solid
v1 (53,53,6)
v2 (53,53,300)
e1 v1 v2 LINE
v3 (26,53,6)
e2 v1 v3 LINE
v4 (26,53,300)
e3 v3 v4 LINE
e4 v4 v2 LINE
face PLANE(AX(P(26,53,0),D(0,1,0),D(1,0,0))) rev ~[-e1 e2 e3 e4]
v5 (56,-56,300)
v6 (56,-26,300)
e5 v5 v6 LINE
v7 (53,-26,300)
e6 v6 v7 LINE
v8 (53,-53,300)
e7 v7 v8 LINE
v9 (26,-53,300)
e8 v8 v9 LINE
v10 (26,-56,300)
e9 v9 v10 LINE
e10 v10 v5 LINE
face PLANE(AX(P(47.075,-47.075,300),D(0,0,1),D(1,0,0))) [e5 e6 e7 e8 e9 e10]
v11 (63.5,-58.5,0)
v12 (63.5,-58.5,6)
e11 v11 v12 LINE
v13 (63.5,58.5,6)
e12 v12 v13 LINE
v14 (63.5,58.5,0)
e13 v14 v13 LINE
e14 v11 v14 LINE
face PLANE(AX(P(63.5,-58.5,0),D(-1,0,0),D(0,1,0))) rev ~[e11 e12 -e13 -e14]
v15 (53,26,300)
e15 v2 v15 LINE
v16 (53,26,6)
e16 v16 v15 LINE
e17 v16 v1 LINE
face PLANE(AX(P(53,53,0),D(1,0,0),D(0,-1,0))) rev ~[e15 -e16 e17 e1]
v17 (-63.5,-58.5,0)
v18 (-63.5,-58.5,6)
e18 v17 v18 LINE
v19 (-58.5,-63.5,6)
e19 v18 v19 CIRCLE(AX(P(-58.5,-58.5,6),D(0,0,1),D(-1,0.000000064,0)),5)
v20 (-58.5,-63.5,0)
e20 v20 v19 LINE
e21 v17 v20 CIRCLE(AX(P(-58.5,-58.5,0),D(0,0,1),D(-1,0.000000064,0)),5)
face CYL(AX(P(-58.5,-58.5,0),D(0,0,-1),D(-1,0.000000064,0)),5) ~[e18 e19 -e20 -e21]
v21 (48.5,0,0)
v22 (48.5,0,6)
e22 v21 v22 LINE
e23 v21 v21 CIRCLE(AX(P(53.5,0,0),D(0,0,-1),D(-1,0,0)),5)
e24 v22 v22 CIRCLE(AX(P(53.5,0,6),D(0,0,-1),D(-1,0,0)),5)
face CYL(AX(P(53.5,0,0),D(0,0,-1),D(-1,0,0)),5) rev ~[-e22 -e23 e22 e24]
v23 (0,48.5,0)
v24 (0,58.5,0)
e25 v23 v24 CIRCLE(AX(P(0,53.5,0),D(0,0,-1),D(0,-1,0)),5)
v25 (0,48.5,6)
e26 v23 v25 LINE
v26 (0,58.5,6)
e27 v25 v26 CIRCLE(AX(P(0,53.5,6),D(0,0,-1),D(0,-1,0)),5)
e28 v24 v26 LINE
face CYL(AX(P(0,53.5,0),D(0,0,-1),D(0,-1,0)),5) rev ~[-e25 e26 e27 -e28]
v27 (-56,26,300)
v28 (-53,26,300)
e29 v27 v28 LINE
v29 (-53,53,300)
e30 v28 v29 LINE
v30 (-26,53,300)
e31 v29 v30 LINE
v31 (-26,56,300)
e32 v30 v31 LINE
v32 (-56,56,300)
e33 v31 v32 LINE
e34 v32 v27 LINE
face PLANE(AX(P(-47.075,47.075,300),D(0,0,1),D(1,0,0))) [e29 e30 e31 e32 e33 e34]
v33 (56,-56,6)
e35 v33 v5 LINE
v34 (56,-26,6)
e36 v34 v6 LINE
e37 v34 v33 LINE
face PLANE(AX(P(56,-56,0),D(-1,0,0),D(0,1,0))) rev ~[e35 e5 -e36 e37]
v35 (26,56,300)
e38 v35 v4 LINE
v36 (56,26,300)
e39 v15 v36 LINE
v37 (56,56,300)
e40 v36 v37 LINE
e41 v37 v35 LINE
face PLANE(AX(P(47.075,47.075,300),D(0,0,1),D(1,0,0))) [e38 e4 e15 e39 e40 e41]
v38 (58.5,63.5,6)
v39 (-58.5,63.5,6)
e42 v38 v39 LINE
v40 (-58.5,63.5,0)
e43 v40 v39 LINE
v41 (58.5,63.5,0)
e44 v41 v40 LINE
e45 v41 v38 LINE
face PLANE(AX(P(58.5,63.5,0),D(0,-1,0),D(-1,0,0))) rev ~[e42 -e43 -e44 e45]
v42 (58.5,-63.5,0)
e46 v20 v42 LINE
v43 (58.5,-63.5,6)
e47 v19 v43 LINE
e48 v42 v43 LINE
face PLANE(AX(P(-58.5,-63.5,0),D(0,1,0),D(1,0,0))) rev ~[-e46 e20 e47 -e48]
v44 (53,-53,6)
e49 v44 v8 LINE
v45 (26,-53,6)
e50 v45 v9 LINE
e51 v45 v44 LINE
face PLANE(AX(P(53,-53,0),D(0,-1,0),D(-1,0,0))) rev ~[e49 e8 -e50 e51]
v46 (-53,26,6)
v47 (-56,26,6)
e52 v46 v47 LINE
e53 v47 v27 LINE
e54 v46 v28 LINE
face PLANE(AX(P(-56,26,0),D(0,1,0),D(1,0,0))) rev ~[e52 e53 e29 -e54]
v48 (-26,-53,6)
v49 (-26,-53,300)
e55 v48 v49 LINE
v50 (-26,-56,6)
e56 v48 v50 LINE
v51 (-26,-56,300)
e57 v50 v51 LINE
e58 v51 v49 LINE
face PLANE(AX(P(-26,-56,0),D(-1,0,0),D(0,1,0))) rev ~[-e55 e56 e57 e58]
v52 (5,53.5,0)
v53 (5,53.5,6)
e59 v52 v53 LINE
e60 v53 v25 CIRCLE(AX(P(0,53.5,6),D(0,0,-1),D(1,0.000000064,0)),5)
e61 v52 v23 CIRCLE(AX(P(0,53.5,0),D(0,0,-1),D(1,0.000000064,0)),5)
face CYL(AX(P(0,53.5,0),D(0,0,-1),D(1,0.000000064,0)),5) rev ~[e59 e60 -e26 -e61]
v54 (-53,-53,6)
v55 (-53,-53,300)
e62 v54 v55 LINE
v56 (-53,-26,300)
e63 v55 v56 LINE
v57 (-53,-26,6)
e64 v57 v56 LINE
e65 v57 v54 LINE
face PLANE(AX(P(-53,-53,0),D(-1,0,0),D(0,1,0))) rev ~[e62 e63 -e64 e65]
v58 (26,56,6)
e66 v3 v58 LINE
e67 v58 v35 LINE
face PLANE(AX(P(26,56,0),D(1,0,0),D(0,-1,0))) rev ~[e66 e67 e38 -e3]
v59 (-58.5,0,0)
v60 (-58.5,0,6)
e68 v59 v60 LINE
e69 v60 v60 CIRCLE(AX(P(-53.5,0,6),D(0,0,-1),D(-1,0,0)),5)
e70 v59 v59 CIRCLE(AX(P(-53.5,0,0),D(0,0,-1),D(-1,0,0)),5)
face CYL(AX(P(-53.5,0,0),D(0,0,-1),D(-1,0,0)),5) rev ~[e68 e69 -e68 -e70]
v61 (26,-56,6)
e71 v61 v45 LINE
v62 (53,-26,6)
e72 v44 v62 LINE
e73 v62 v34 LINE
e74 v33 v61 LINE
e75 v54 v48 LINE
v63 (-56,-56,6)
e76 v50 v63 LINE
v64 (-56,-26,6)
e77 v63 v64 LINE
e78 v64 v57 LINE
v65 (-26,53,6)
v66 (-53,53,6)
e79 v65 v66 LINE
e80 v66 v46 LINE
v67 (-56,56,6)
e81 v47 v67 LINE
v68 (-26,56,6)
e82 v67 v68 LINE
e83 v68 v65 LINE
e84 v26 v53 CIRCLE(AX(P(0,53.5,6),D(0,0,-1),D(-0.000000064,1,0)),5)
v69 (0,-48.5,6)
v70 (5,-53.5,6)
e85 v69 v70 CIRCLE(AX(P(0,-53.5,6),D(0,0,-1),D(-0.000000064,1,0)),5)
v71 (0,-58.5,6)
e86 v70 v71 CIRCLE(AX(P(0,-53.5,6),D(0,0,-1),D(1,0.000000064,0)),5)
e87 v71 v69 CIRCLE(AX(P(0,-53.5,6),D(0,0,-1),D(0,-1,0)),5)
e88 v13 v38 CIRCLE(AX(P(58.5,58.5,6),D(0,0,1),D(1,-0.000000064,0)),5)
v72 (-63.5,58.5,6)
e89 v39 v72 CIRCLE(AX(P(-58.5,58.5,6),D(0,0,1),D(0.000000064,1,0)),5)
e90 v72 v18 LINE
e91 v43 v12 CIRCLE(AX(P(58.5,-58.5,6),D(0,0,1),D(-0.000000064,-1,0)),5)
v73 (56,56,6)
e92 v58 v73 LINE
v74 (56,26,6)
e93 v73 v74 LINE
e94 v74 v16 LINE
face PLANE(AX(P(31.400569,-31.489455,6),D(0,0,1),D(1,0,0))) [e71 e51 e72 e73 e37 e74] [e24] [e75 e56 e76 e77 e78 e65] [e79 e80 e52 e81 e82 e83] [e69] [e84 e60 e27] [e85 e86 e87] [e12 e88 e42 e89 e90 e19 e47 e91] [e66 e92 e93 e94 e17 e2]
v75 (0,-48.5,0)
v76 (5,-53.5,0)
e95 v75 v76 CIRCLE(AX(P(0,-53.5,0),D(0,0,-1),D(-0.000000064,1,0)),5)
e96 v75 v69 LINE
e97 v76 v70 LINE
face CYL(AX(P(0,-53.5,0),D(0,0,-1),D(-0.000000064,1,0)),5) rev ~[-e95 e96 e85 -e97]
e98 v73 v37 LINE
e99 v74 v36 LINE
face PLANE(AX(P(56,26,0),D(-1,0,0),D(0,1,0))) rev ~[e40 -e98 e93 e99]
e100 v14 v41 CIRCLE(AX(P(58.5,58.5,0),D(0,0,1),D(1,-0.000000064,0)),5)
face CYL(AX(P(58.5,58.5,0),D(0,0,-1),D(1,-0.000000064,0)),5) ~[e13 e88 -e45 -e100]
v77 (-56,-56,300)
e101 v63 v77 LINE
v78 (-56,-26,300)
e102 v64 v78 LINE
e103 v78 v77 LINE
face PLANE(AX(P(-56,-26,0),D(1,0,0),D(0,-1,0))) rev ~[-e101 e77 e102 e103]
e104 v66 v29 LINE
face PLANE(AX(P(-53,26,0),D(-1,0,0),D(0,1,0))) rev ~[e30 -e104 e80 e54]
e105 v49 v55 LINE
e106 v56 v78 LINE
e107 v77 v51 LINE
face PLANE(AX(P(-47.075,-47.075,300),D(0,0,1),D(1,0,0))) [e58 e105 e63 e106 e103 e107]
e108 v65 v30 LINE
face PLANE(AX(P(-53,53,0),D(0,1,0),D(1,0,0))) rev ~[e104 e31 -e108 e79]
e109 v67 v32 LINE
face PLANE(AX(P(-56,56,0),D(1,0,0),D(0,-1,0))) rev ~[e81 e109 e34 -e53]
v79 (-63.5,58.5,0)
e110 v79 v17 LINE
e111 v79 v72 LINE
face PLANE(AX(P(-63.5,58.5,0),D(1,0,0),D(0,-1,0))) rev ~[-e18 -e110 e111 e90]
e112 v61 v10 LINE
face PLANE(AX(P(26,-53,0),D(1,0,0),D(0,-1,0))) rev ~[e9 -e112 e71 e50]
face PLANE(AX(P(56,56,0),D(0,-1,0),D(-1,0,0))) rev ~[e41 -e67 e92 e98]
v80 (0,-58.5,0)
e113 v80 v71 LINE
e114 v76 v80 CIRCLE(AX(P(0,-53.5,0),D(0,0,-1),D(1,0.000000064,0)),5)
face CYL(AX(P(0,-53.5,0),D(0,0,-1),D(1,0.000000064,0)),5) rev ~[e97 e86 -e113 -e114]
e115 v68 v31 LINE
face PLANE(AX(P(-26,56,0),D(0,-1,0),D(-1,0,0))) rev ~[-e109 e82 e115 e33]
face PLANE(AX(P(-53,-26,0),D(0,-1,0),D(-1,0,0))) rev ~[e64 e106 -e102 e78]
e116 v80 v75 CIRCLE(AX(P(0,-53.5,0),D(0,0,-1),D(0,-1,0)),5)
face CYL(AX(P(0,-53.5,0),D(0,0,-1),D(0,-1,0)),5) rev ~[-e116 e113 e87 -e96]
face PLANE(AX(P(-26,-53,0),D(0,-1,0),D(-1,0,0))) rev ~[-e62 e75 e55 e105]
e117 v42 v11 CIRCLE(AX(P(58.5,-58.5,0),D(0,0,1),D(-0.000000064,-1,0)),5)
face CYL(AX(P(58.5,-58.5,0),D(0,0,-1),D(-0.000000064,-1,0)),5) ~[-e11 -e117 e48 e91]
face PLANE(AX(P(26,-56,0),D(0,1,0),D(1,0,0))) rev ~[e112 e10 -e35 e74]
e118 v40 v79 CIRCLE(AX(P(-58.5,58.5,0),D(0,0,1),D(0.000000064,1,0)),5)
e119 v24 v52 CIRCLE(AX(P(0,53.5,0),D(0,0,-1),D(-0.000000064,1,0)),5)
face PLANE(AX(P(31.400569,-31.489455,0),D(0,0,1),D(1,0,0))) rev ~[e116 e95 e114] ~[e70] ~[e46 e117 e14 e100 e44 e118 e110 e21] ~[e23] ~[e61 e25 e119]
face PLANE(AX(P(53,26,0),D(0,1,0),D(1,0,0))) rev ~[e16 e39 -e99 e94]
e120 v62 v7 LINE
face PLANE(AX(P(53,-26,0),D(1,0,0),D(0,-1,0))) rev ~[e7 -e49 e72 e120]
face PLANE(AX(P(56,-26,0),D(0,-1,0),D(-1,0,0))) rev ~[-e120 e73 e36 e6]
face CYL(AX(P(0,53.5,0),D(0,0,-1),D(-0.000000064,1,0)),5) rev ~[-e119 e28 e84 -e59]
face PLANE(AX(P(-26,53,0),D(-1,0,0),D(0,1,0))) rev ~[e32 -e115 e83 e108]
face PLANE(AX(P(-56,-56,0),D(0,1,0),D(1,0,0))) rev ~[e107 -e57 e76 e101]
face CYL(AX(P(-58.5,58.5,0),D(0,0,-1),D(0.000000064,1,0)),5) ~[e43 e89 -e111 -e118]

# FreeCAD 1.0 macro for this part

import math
import FreeCAD as App
import Part
import Sketcher

doc = App.newDocument("Part")
body = doc.addObject("PartDesign::Body", "Body")

sketch1 = body.newObject("Sketcher::SketchObject", "Sketch")
sketch1.AttachmentSupport = (doc.getObject("XY_Plane"), [""])
sketch1.MapMode = "FlatFace"
sketch1.addGeometry([
    Part.ArcOfCircle(Part.Circle(App.Vector(58.5, -58.5, 0), App.Vector(0, 0, 1), 5), math.radians(-90.000004), math.radians(0.000004)),
    Part.LineSegment(App.Vector(63.5, -58.5, 0), App.Vector(63.5, 58.5, 0)),
    Part.ArcOfCircle(Part.Circle(App.Vector(58.5, 58.5, 0), App.Vector(0, 0, 1), 5), math.radians(-0.000004), math.radians(90.000004)),
    Part.LineSegment(App.Vector(58.5, 63.5, 0), App.Vector(-58.5, 63.5, 0)),
    Part.ArcOfCircle(Part.Circle(App.Vector(-58.5, 58.5, 0), App.Vector(0, 0, 1), 5), math.radians(89.999996), math.radians(180.000004)),
    Part.LineSegment(App.Vector(-63.5, 58.5, 0), App.Vector(-63.5, -58.5, 0)),
    Part.ArcOfCircle(Part.Circle(App.Vector(-58.5, -58.5, 0), App.Vector(0, 0, 1), 5), math.radians(179.999996), math.radians(270.000004)),
    Part.LineSegment(App.Vector(-58.5, -63.5, 0), App.Vector(58.5, -63.5, 0)),
    Part.LineSegment(App.Vector(-26, -56, 0), App.Vector(-56, -56, 0)),
    Part.LineSegment(App.Vector(-56, -56, 0), App.Vector(-56, -26, 0)),
    Part.LineSegment(App.Vector(-56, -26, 0), App.Vector(-53, -26, 0)),
    Part.LineSegment(App.Vector(-53, -26, 0), App.Vector(-53, -53, 0)),
    Part.LineSegment(App.Vector(-53, -53, 0), App.Vector(-26, -53, 0)),
    Part.LineSegment(App.Vector(-26, -53, 0), App.Vector(-26, -56, 0)),
    Part.Circle(App.Vector(-53.5, 0, 0), App.Vector(0, 0, 1), 5),
    Part.ArcOfCircle(Part.Circle(App.Vector(0, -53.5, 0), App.Vector(0, 0, 1), 5), math.radians(-90.000004), math.radians(0.000004)),
    Part.ArcOfCircle(Part.Circle(App.Vector(0, -53.5, 0), App.Vector(0, 0, 1), 5), math.radians(90), math.radians(270)),
    Part.ArcOfCircle(Part.Circle(App.Vector(0, -53.5, 0), App.Vector(0, 0, 1), 5), math.radians(-0.000004), math.radians(90.000004)),
    Part.LineSegment(App.Vector(53, -53, 0), App.Vector(53, -26, 0)),
    Part.LineSegment(App.Vector(53, -26, 0), App.Vector(56, -26, 0)),
    Part.LineSegment(App.Vector(56, -26, 0), App.Vector(56, -56, 0)),
    Part.LineSegment(App.Vector(56, -56, 0), App.Vector(26, -56, 0)),
    Part.LineSegment(App.Vector(26, -56, 0), App.Vector(26, -53, 0)),
    Part.LineSegment(App.Vector(26, -53, 0), App.Vector(53, -53, 0)),
    Part.Circle(App.Vector(53.5, 0, 0), App.Vector(0, 0, 1), 5),
    Part.LineSegment(App.Vector(-53, 26, 0), App.Vector(-56, 26, 0)),
    Part.LineSegment(App.Vector(-56, 26, 0), App.Vector(-56, 56, 0)),
    Part.LineSegment(App.Vector(-56, 56, 0), App.Vector(-26, 56, 0)),
    Part.LineSegment(App.Vector(-26, 56, 0), App.Vector(-26, 53, 0)),
    Part.LineSegment(App.Vector(-26, 53, 0), App.Vector(-53, 53, 0)),
    Part.LineSegment(App.Vector(-53, 53, 0), App.Vector(-53, 26, 0)),
    Part.ArcOfCircle(Part.Circle(App.Vector(0, 53.5, 0), App.Vector(0, 0, 1), 5), math.radians(-0.000004), math.radians(90.000004)),
    Part.ArcOfCircle(Part.Circle(App.Vector(0, 53.5, 0), App.Vector(0, 0, 1), 5), math.radians(-90.000004), math.radians(0.000004)),
    Part.ArcOfCircle(Part.Circle(App.Vector(0, 53.5, 0), App.Vector(0, 0, 1), 5), math.radians(90), math.radians(270)),
    Part.LineSegment(App.Vector(53, 53, 0), App.Vector(26, 53, 0)),
    Part.LineSegment(App.Vector(26, 53, 0), App.Vector(26, 56, 0)),
    Part.LineSegment(App.Vector(26, 56, 0), App.Vector(56, 56, 0)),
    Part.LineSegment(App.Vector(56, 56, 0), App.Vector(56, 26, 0)),
    Part.LineSegment(App.Vector(56, 26, 0), App.Vector(53, 26, 0)),
    Part.LineSegment(App.Vector(53, 26, 0), App.Vector(53, 53, 0)),
], False)
sketch1.addConstraint([
    Sketcher.Constraint("Tangent", 0, 2, 1, 1),
    Sketcher.Constraint("Tangent", 1, 2, 2, 1),
    Sketcher.Constraint("Tangent", 2, 2, 3, 1),
    Sketcher.Constraint("Tangent", 3, 2, 4, 1),
    Sketcher.Constraint("Tangent", 4, 2, 5, 1),
    Sketcher.Constraint("Tangent", 5, 2, 6, 1),
    Sketcher.Constraint("Tangent", 6, 2, 7, 1),
    Sketcher.Constraint("Tangent", 7, 2, 0, 1),
    Sketcher.Constraint("Coincident", 8, 2, 9, 1),
    Sketcher.Constraint("Coincident", 9, 2, 10, 1),
    Sketcher.Constraint("Coincident", 10, 2, 11, 1),
    Sketcher.Constraint("Coincident", 11, 2, 12, 1),
    Sketcher.Constraint("Coincident", 12, 2, 13, 1),
    Sketcher.Constraint("Coincident", 13, 2, 8, 1),
    Sketcher.Constraint("Tangent", 15, 1, 16, 2),
    Sketcher.Constraint("Tangent", 16, 1, 17, 2),
    Sketcher.Constraint("Tangent", 17, 1, 15, 2),
    Sketcher.Constraint("Coincident", 18, 2, 19, 1),
    Sketcher.Constraint("Coincident", 19, 2, 20, 1),
    Sketcher.Constraint("Coincident", 20, 2, 21, 1),
    Sketcher.Constraint("Coincident", 21, 2, 22, 1),
    Sketcher.Constraint("Coincident", 22, 2, 23, 1),
    Sketcher.Constraint("Coincident", 23, 2, 18, 1),
    Sketcher.Constraint("Coincident", 25, 2, 26, 1),
    Sketcher.Constraint("Coincident", 26, 2, 27, 1),
    Sketcher.Constraint("Coincident", 27, 2, 28, 1),
    Sketcher.Constraint("Coincident", 28, 2, 29, 1),
    Sketcher.Constraint("Coincident", 29, 2, 30, 1),
    Sketcher.Constraint("Coincident", 30, 2, 25, 1),
    Sketcher.Constraint("Tangent", 31, 1, 32, 2),
    Sketcher.Constraint("Tangent", 32, 1, 33, 2),
    Sketcher.Constraint("Tangent", 33, 1, 31, 2),
    Sketcher.Constraint("Coincident", 34, 2, 35, 1),
    Sketcher.Constraint("Coincident", 35, 2, 36, 1),
    Sketcher.Constraint("Coincident", 36, 2, 37, 1),
    Sketcher.Constraint("Coincident", 37, 2, 38, 1),
    Sketcher.Constraint("Coincident", 38, 2, 39, 1),
    Sketcher.Constraint("Coincident", 39, 2, 34, 1),
    Sketcher.Constraint("Vertical", 1),
    Sketcher.Constraint("Horizontal", 3),
    Sketcher.Constraint("Vertical", 5),
    Sketcher.Constraint("Horizontal", 7),
    Sketcher.Constraint("Horizontal", 8),
    Sketcher.Constraint("Vertical", 9),
    Sketcher.Constraint("Horizontal", 10),
    Sketcher.Constraint("Vertical", 11),
    Sketcher.Constraint("Horizontal", 12),
    Sketcher.Constraint("Vertical", 13),
    Sketcher.Constraint("Vertical", 18),
    Sketcher.Constraint("Horizontal", 19),
    Sketcher.Constraint("Vertical", 20),
    Sketcher.Constraint("Horizontal", 21),
    Sketcher.Constraint("Vertical", 22),
    Sketcher.Constraint("Horizontal", 23),
    Sketcher.Constraint("Horizontal", 25),
    Sketcher.Constraint("Vertical", 26),
    Sketcher.Constraint("Horizontal", 27),
    Sketcher.Constraint("Vertical", 28),
    Sketcher.Constraint("Horizontal", 29),
    Sketcher.Constraint("Vertical", 30),
    Sketcher.Constraint("Horizontal", 34),
    Sketcher.Constraint("Vertical", 35),
    Sketcher.Constraint("Horizontal", 36),
    Sketcher.Constraint("Vertical", 37),
    Sketcher.Constraint("Horizontal", 38),
    Sketcher.Constraint("Vertical", 39),
    Sketcher.Constraint("Equal", 0, 2),
    Sketcher.Constraint("Equal", 2, 4),
    Sketcher.Constraint("Equal", 4, 6),
    Sketcher.Constraint("Equal", 6, 14),
    Sketcher.Constraint("Equal", 14, 15),
    Sketcher.Constraint("Equal", 17, 24),
    Sketcher.Constraint("Equal", 24, 31),
    Sketcher.Constraint("Symmetric", 0, 3, 4, 3, -1, 1),
    Sketcher.Constraint("Symmetric", 14, 3, 24, 3, -1, 1),
    Sketcher.Constraint("Symmetric", 15, 3, 31, 3, -1, 1),
    Sketcher.Constraint("Symmetric", 19, 2, 25, 2, -1, 1),
    Sketcher.Constraint("Symmetric", 21, 2, 27, 2, -1, 1),
    Sketcher.Constraint("Symmetric", 23, 2, 29, 2, -1, 1),
    Sketcher.Constraint("Symmetric", 12, 2, 34, 2, -1, 1),
    Sketcher.Constraint("Symmetric", 8, 2, 36, 2, -1, 1),
    Sketcher.Constraint("Symmetric", 10, 2, 38, 2, -1, 1),
    Sketcher.Constraint("Symmetric", 10, 2, 18, 2, -2),
    Sketcher.Constraint("Symmetric", 8, 2, 20, 2, -2),
    Sketcher.Constraint("Symmetric", 12, 2, 22, 2, -2),
    Sketcher.Constraint("Symmetric", 17, 1, 31, 1, -1),
    Sketcher.Constraint("PointOnObject", 14, 3, -1),
    Sketcher.Constraint("PointOnObject", 15, 1, -2),
    Sketcher.Constraint("PointOnObject", 16, 1, -2),
    Sketcher.Constraint("PointOnObject", 32, 1, -2),
    Sketcher.Constraint("PointOnObject", 33, 1, -2),
    Sketcher.Constraint("Horizontal", 5, 2, 15, 1),
    Sketcher.Constraint("Horizontal", 16, 3, 17, 1),
    Sketcher.Constraint("Equal", 7, 1),
    Sketcher.Constraint("Equal", 36, 9),
    Sketcher.Constraint("Equal", 34, 11),
    Sketcher.Constraint("Diameter", 14, 10.0),
    Sketcher.Constraint("DistanceX", 3, 2, 3, 1, 117.0),
    Sketcher.Constraint("DistanceX", 8, 2, 8, 1, 30.0),
    Sketcher.Constraint("DistanceX", 10, 1, 10, 2, 3.0),
    Sketcher.Constraint("DistanceX", 8, 2, -1, 1, 56.0),
    Sketcher.Constraint("DistanceY", 8, 2, -1, 1, 56.0),
    Sketcher.Constraint("DistanceX", 4, 3, 14, 3, 5.0),
])
pad1 = body.newObject("PartDesign::Pad", "Pad")
pad1.Profile = sketch1
pad1.Length = 6

sketch2 = body.newObject("Sketcher::SketchObject", "Sketch001")
sketch2.AttachmentSupport = (doc.getObject("XY_Plane"), [""])
sketch2.MapMode = "FlatFace"
sketch2.addGeometry([
    Part.LineSegment(App.Vector(56, -56, 0), App.Vector(56, -26, 0)),
    Part.LineSegment(App.Vector(56, -26, 0), App.Vector(53, -26, 0)),
    Part.LineSegment(App.Vector(53, -26, 0), App.Vector(53, -53, 0)),
    Part.LineSegment(App.Vector(53, -53, 0), App.Vector(26, -53, 0)),
    Part.LineSegment(App.Vector(26, -53, 0), App.Vector(26, -56, 0)),
    Part.LineSegment(App.Vector(26, -56, 0), App.Vector(56, -56, 0)),
    Part.LineSegment(App.Vector(56, 56, 0), App.Vector(26, 56, 0)),
    Part.LineSegment(App.Vector(26, 56, 0), App.Vector(26, 53, 0)),
    Part.LineSegment(App.Vector(26, 53, 0), App.Vector(53, 53, 0)),
    Part.LineSegment(App.Vector(53, 53, 0), App.Vector(53, 26, 0)),
    Part.LineSegment(App.Vector(53, 26, 0), App.Vector(56, 26, 0)),
    Part.LineSegment(App.Vector(56, 26, 0), App.Vector(56, 56, 0)),
    Part.LineSegment(App.Vector(-26, 56, 0), App.Vector(-56, 56, 0)),
    Part.LineSegment(App.Vector(-56, 56, 0), App.Vector(-56, 26, 0)),
    Part.LineSegment(App.Vector(-56, 26, 0), App.Vector(-53, 26, 0)),
    Part.LineSegment(App.Vector(-53, 26, 0), App.Vector(-53, 53, 0)),
    Part.LineSegment(App.Vector(-53, 53, 0), App.Vector(-26, 53, 0)),
    Part.LineSegment(App.Vector(-26, 53, 0), App.Vector(-26, 56, 0)),
    Part.LineSegment(App.Vector(-53, -26, 0), App.Vector(-56, -26, 0)),
    Part.LineSegment(App.Vector(-56, -26, 0), App.Vector(-56, -56, 0)),
    Part.LineSegment(App.Vector(-56, -56, 0), App.Vector(-26, -56, 0)),
    Part.LineSegment(App.Vector(-26, -56, 0), App.Vector(-26, -53, 0)),
    Part.LineSegment(App.Vector(-26, -53, 0), App.Vector(-53, -53, 0)),
    Part.LineSegment(App.Vector(-53, -53, 0), App.Vector(-53, -26, 0)),
], False)
sketch2.addConstraint([
    Sketcher.Constraint("Coincident", 0, 2, 1, 1),
    Sketcher.Constraint("Coincident", 1, 2, 2, 1),
    Sketcher.Constraint("Coincident", 2, 2, 3, 1),
    Sketcher.Constraint("Coincident", 3, 2, 4, 1),
    Sketcher.Constraint("Coincident", 4, 2, 5, 1),
    Sketcher.Constraint("Coincident", 5, 2, 0, 1),
    Sketcher.Constraint("Coincident", 6, 2, 7, 1),
    Sketcher.Constraint("Coincident", 7, 2, 8, 1),
    Sketcher.Constraint("Coincident", 8, 2, 9, 1),
    Sketcher.Constraint("Coincident", 9, 2, 10, 1),
    Sketcher.Constraint("Coincident", 10, 2, 11, 1),
    Sketcher.Constraint("Coincident", 11, 2, 6, 1),
    Sketcher.Constraint("Coincident", 12, 2, 13, 1),
    Sketcher.Constraint("Coincident", 13, 2, 14, 1),
    Sketcher.Constraint("Coincident", 14, 2, 15, 1),
    Sketcher.Constraint("Coincident", 15, 2, 16, 1),
    Sketcher.Constraint("Coincident", 16, 2, 17, 1),
    Sketcher.Constraint("Coincident", 17, 2, 12, 1),
    Sketcher.Constraint("Coincident", 18, 2, 19, 1),
    Sketcher.Constraint("Coincident", 19, 2, 20, 1),
    Sketcher.Constraint("Coincident", 20, 2, 21, 1),
    Sketcher.Constraint("Coincident", 21, 2, 22, 1),
    Sketcher.Constraint("Coincident", 22, 2, 23, 1),
    Sketcher.Constraint("Coincident", 23, 2, 18, 1),
    Sketcher.Constraint("Vertical", 0),
    Sketcher.Constraint("Horizontal", 1),
    Sketcher.Constraint("Vertical", 2),
    Sketcher.Constraint("Horizontal", 3),
    Sketcher.Constraint("Vertical", 4),
    Sketcher.Constraint("Horizontal", 5),
    Sketcher.Constraint("Horizontal", 6),
    Sketcher.Constraint("Vertical", 7),
    Sketcher.Constraint("Horizontal", 8),
    Sketcher.Constraint("Vertical", 9),
    Sketcher.Constraint("Horizontal", 10),
    Sketcher.Constraint("Vertical", 11),
    Sketcher.Constraint("Horizontal", 12),
    Sketcher.Constraint("Vertical", 13),
    Sketcher.Constraint("Horizontal", 14),
    Sketcher.Constraint("Vertical", 15),
    Sketcher.Constraint("Horizontal", 16),
    Sketcher.Constraint("Vertical", 17),
    Sketcher.Constraint("Horizontal", 18),
    Sketcher.Constraint("Vertical", 19),
    Sketcher.Constraint("Horizontal", 20),
    Sketcher.Constraint("Vertical", 21),
    Sketcher.Constraint("Horizontal", 22),
    Sketcher.Constraint("Vertical", 23),
    Sketcher.Constraint("Symmetric", 5, 2, 12, 2, -1, 1),
    Sketcher.Constraint("Symmetric", 1, 2, 14, 2, -1, 1),
    Sketcher.Constraint("Symmetric", 3, 2, 16, 2, -1, 1),
    Sketcher.Constraint("Symmetric", 10, 2, 18, 2, -1, 1),
    Sketcher.Constraint("Symmetric", 6, 2, 20, 2, -1, 1),
    Sketcher.Constraint("Symmetric", 8, 2, 22, 2, -1, 1),
    Sketcher.Constraint("Symmetric", 11, 2, 12, 2, -2),
    Sketcher.Constraint("Symmetric", 9, 2, 14, 2, -2),
    Sketcher.Constraint("Symmetric", 7, 2, 16, 2, -2),
    Sketcher.Constraint("Equal", 20, 0),
    Sketcher.Constraint("Equal", 22, 2),
    Sketcher.Constraint("DistanceX", 1, 2, 1, 1, 3.0),
    Sketcher.Constraint("DistanceX", 3, 2, 3, 1, 27.0),
    Sketcher.Constraint("DistanceX", -1, 1, 0, 2, 56.0),
    Sketcher.Constraint("DistanceY", 0, 2, -1, 1, 26.0),
])
pad2 = body.newObject("PartDesign::Pad", "Pad001")
pad2.Profile = sketch2
pad2.Length = 300

doc.recompute()
